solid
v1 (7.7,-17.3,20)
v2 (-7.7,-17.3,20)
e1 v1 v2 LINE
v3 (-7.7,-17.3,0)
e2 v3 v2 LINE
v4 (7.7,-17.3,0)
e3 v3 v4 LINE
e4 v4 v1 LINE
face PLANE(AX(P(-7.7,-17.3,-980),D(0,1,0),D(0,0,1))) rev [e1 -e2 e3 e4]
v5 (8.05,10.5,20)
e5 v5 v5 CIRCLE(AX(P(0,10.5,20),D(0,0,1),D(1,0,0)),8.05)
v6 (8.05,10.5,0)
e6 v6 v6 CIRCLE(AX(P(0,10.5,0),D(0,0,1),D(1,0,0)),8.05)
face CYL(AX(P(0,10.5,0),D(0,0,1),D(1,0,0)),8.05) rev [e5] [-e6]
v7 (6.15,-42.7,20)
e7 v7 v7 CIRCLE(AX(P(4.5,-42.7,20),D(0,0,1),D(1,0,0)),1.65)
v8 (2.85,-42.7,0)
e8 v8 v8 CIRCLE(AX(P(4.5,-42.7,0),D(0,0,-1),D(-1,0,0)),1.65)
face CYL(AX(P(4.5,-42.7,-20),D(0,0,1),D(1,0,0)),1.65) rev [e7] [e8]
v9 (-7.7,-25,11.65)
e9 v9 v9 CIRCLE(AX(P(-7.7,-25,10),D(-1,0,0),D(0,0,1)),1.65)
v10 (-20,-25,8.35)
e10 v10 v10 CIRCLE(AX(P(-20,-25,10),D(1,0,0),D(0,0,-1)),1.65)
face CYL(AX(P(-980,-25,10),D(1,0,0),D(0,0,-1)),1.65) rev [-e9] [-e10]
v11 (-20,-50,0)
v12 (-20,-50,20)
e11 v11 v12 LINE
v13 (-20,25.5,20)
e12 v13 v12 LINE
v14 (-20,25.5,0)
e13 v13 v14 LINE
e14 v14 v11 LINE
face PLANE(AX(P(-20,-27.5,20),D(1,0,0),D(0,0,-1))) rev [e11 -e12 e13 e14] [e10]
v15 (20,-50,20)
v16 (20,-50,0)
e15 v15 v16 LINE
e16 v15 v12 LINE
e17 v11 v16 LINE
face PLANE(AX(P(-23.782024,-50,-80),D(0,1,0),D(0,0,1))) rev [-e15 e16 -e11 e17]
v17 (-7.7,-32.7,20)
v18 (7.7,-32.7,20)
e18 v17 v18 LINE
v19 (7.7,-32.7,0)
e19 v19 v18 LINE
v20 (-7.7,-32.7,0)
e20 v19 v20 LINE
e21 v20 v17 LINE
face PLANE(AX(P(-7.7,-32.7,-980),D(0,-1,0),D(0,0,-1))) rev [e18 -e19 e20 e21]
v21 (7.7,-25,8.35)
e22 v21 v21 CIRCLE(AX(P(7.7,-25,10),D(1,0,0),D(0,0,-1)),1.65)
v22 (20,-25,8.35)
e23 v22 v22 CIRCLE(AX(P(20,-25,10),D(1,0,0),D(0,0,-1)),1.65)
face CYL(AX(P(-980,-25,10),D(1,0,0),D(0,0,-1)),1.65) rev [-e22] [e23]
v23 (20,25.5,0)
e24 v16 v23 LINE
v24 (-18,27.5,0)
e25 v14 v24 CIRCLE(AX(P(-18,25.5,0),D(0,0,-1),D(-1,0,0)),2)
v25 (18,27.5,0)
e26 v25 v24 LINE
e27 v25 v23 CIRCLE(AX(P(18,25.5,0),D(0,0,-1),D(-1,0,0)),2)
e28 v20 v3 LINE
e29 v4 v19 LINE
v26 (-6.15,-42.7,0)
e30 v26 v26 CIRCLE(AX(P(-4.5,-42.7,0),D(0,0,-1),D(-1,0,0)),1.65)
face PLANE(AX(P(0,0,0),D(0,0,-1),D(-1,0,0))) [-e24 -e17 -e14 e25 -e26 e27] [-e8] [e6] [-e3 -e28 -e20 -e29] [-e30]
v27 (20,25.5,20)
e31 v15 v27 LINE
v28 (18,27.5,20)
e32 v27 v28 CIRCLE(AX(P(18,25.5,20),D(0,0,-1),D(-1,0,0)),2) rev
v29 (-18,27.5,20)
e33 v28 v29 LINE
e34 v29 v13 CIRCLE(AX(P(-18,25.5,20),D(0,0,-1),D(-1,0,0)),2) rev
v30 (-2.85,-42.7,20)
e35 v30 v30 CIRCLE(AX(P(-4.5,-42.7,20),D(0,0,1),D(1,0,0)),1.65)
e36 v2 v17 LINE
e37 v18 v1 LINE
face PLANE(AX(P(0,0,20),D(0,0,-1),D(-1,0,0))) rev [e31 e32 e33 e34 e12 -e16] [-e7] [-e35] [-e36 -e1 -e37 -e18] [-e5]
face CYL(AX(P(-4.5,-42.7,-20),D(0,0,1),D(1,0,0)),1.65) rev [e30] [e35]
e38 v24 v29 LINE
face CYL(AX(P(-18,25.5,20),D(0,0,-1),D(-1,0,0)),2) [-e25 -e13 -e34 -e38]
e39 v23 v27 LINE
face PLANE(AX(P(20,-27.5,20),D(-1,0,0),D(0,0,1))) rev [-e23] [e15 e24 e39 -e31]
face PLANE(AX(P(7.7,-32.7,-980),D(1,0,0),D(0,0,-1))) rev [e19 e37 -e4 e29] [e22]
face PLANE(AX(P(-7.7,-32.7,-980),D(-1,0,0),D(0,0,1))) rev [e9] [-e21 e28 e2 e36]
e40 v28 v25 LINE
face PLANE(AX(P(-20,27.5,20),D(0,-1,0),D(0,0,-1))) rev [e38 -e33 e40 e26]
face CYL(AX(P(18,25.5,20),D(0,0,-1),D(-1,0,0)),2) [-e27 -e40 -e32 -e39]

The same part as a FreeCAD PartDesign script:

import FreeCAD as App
import Part
import Sketcher
Q = App.Units.Quantity


def edges_at(feature, points):
    """Names of the edges that pass closest to the given points."""
    edges = feature.Shape.Edges
    near = lambda p: min(range(len(edges)), key=lambda i: edges[i].distToShape(Part.Vertex(*p))[0])
    return sorted({f"Edge{near(p) + 1}" for p in points})


def add_polygon(sketch, points):
    """Adds a closed chain of lines whose ends are joined by coincident constraints."""
    first, n = sketch.GeometryCount, len(points)
    for a, b in zip(points, points[1:] + points[:1]):
        sketch.addGeometry(Part.LineSegment(App.Vector(*a, 0), App.Vector(*b, 0)), False)
    for i in range(n):
        sketch.addConstraint(Sketcher.Constraint("Coincident", first + i, 2, first + (i + 1) % n, 1))

doc = App.newDocument("Part")
params = doc.addObject("Spreadsheet::Sheet", "Params")
for row, (alias, value) in enumerate([
    ("sketch1_width", "40 mm"),
    ("sketch1_height", "55 mm"),
    ("pad1_length", "20 mm"),
    ("sketch2_diameter", "16.1 mm"),
    ("pocket1_length", "20 mm"),
    ("sketch3_width", "40 mm"),
    ("sketch3_height", "20 mm"),
    ("pad2_length", "32.5 mm"),
    ("sketch4_width", "15.4 mm"),
    ("pocket2_length", "1000 mm"),
    ("sketch5_diameter", "3.3 mm"),
    ("pocket3_length", "40 mm"),
    ("sketch6_width", "5 mm"),
    ("pocket4_length", "6 mm"),
    ("fillet_radius", "2 mm"),
    ("pocket5_length", "100 mm"),
    ("sketch8_diameter", "3.3 mm"),
    ("pocket6_length", "1000 mm"),
], start=1):
    params.set(f"A{row}", alias)
    params.set(f"B{row}", "=" + value)
    params.setAlias(f"B{row}", alias)

body = doc.addObject("PartDesign::Body", "Body")

sketch1 = body.newObject("Sketcher::SketchObject", "Sketch")
sketch1.AttachmentSupport = (doc.getObject("XY_Plane"), [""])
sketch1.MapMode = "FlatFace"
add_polygon(sketch1, [(-20, 28), (-20, -28), (20, -28), (20, 28)])
sketch1.addConstraint([
    Sketcher.Constraint("Vertical", 0),
    Sketcher.Constraint("Horizontal", 1),
    Sketcher.Constraint("Vertical", 2),
    Sketcher.Constraint("Horizontal", 3),
    Sketcher.Constraint("Symmetric", 0, 2, 2, 2, -1, 1),
    Sketcher.Constraint("DistanceX", 1, 1, 1, 2, Q("40 mm")),
    Sketcher.Constraint("DistanceY", 0, 2, 0, 1, Q("55 mm")),
])
sketch1.setExpression("Constraints[9]", "Params.sketch1_width")
sketch1.setExpression("Constraints[10]", "Params.sketch1_height")
pad1 = body.newObject("PartDesign::Pad", "Pad")
pad1.Profile = sketch1
pad1.setExpression("Length", "Params.pad1_length")

sketch2 = body.newObject("Sketcher::SketchObject", "Sketch001")
sketch2.AttachmentSupport = (doc.getObject("XY_Plane"), [""])
sketch2.MapMode = "FlatFace"
sketch2.AttachmentOffset = App.Placement(App.Vector(0, 0, 20), App.Rotation())
sketch2.addGeometry(Part.Circle(App.Vector(0, 10, 0), App.Vector(0, 0, 1), 8), False)
sketch2.addConstraint([
    Sketcher.Constraint("PointOnObject", 0, 3, -2),
    Sketcher.Constraint("Diameter", 0, Q("16.1 mm")),
    Sketcher.Constraint("DistanceY", -1, 1, 0, 3, Q("10.5 mm")),
])
sketch2.setExpression("Constraints[1]", "Params.sketch2_diameter")
pocket1 = body.newObject("PartDesign::Pocket", "Pocket")
pocket1.Profile = sketch2
pocket1.setExpression("Length", "Params.pocket1_length")

sketch3 = body.newObject("Sketcher::SketchObject", "Sketch002")
sketch3.AttachmentSupport = (doc.getObject("XZ_Plane"), [""])
sketch3.MapMode = "FlatFace"
sketch3.AttachmentOffset = App.Placement(App.Vector(0, 0, 27.5), App.Rotation())
add_polygon(sketch3, [(-20, 20), (-20, 0), (20, 0), (20, 20)])
sketch3.addConstraint([
    Sketcher.Constraint("Vertical", 0),
    Sketcher.Constraint("Horizontal", 1),
    Sketcher.Constraint("Vertical", 2),
    Sketcher.Constraint("Horizontal", 3),
    Sketcher.Constraint("Symmetric", 0, 2, 1, 2, -1, 1),
    Sketcher.Constraint("DistanceX", 1, 1, 1, 2, Q("40 mm")),
    Sketcher.Constraint("DistanceY", 0, 2, 0, 1, Q("20 mm")),
])
sketch3.setExpression("Constraints[9]", "Params.sketch3_width")
sketch3.setExpression("Constraints[10]", "Params.sketch3_height")
pad2 = body.newObject("PartDesign::Pad", "Pad001")
pad2.Profile = sketch3
pad2.setExpression("Length", "Params.pad2_length")

sketch4 = body.newObject("Sketcher::SketchObject", "Sketch003")
sketch4.AttachmentSupport = (doc.getObject("XY_Plane"), [""])
sketch4.MapMode = "FlatFace"
sketch4.AttachmentOffset = App.Placement(App.Vector(0, 0, 20), App.Rotation())
add_polygon(sketch4, [(-8, -17), (-8, -33), (8, -33), (8, -17)])
sketch4.addConstraint([
    Sketcher.Constraint("Vertical", 0),
    Sketcher.Constraint("Horizontal", 1),
    Sketcher.Constraint("Vertical", 2),
    Sketcher.Constraint("Horizontal", 3),
    Sketcher.Constraint("Equal", 3, 0),
    Sketcher.Constraint("DistanceX", 1, 1, 1, 2, Q("15.4 mm")),
    Sketcher.Constraint("DistanceX", 0, 2, -1, 1, Q("7.7 mm")),
    Sketcher.Constraint("DistanceY", 0, 2, -1, 1, Q("32.7 mm")),
])
sketch4.setExpression("Constraints[9]", "Params.sketch4_width")
pocket2 = body.newObject("PartDesign::Pocket", "Pocket001")
pocket2.Profile = sketch4
pocket2.setExpression("Length", "Params.pocket2_length")

sketch5 = body.newObject("Sketcher::SketchObject", "Sketch004")
sketch5.AttachmentSupport = (doc.getObject("XY_Plane"), [""])
sketch5.MapMode = "FlatFace"
sketch5.AttachmentOffset = App.Placement(App.Vector(0, 0, 20), App.Rotation())
sketch5.addGeometry([
    Part.Circle(App.Vector(4.5, -42.7, 0), App.Vector(0, 0, 1), 1.6),
    Part.Circle(App.Vector(-4.5, -42.7, 0), App.Vector(0, 0, 1), 1.6),
], False)
sketch5.addConstraint([
    Sketcher.Constraint("Equal", 0, 1),
    Sketcher.Constraint("Symmetric", 0, 3, 1, 3, -2),
    Sketcher.Constraint("Diameter", 0, Q("3.3 mm")),
    Sketcher.Constraint("DistanceX", 1, 3, 0, 3, Q("9 mm")),
    Sketcher.Constraint("DistanceY", 0, 3, -1, 1, Q("42.7 mm")),
])
sketch5.setExpression("Constraints[2]", "Params.sketch5_diameter")
pocket3 = body.newObject("PartDesign::Pocket", "Pocket002")
pocket3.Profile = sketch5
pocket3.setExpression("Length", "Params.pocket3_length")

sketch6 = body.newObject("Sketcher::SketchObject", "Sketch005")
sketch6.AttachmentSupport = (doc.getObject("XZ_Plane"), [""])
sketch6.MapMode = "FlatFace"
sketch6.AttachmentOffset = App.Placement(App.Vector(0, 0, 60), App.Rotation())
add_polygon(sketch6, [(-2, 14), (-2, 10), (2, 10), (2, 14)])
sketch6.addConstraint([
    Sketcher.Constraint("Vertical", 0),
    Sketcher.Constraint("Horizontal", 1),
    Sketcher.Constraint("Vertical", 2),
    Sketcher.Constraint("Horizontal", 3),
    Sketcher.Constraint("Equal", 3, 0),
    Sketcher.Constraint("DistanceX", 1, 1, 1, 2, Q("5 mm")),
    Sketcher.Constraint("DistanceX", 0, 2, -1, 1, Q("2.5 mm")),
    Sketcher.Constraint("DistanceY", -1, 1, 0, 2, Q("9.5 mm")),
])
sketch6.setExpression("Constraints[9]", "Params.sketch6_width")
pocket4 = body.newObject("PartDesign::Pocket", "Pocket003")
pocket4.Profile = sketch6
pocket4.setExpression("Length", "Params.pocket4_length")
doc.recompute()

fillet = body.newObject("PartDesign::Fillet", "Fillet")
fillet.Base = (pocket4, edges_at(pocket4, [(-20, 27.5, 10), (20, 27.5, 10)]))
fillet.setExpression("Radius", "Params.fillet_radius")

sketch7 = body.newObject("Sketcher::SketchObject", "Sketch006")
sketch7.AttachmentSupport = (doc.getObject("XY_Plane"), [""])
sketch7.MapMode = "FlatFace"
sketch7.AttachmentOffset = App.Placement(App.Vector(0, 0, 20), App.Rotation())
add_polygon(sketch7, [(-24, -50), (-24, -61), (24, -61), (24, -50)])
sketch7.addConstraint([
    Sketcher.Constraint("Vertical", 0),
    Sketcher.Constraint("Horizontal", 1),
    Sketcher.Constraint("Vertical", 2),
    Sketcher.Constraint("Horizontal", 3),
    Sketcher.Constraint("DistanceY", 2, 2, -1, 1, Q("50 mm")),
    Sketcher.Constraint("DistanceX", 1, 1, 1, 2, Q("47.564048 mm")),
    Sketcher.Constraint("DistanceY", 0, 2, 0, 1, Q("11.463167 mm")),
    Sketcher.Constraint("DistanceX", 0, 2, -1, 1, Q("23.782024 mm")),
])
pocket5 = body.newObject("PartDesign::Pocket", "Pocket004")
pocket5.Profile = sketch7
pocket5.setExpression("Length", "Params.pocket5_length")

sketch8 = body.newObject("Sketcher::SketchObject", "Sketch007")
sketch8.AttachmentSupport = (doc.getObject("YZ_Plane"), [""])
sketch8.MapMode = "FlatFace"
sketch8.AttachmentOffset = App.Placement(App.Vector(0, 0, 20), App.Rotation())
sketch8.addGeometry(Part.Circle(App.Vector(-25, 10, 0), App.Vector(0, 0, 1), 1.6), False)
sketch8.addConstraint([
    Sketcher.Constraint("Diameter", 0, Q("3.3 mm")),
    Sketcher.Constraint("DistanceX", 0, 3, -1, 1, Q("25 mm")),
    Sketcher.Constraint("DistanceY", -1, 1, 0, 3, Q("10 mm")),
])
sketch8.setExpression("Constraints[0]", "Params.sketch8_diameter")
pocket6 = body.newObject("PartDesign::Pocket", "Pocket005")
pocket6.Profile = sketch8
pocket6.setExpression("Length", "Params.pocket6_length")

doc.recompute()
